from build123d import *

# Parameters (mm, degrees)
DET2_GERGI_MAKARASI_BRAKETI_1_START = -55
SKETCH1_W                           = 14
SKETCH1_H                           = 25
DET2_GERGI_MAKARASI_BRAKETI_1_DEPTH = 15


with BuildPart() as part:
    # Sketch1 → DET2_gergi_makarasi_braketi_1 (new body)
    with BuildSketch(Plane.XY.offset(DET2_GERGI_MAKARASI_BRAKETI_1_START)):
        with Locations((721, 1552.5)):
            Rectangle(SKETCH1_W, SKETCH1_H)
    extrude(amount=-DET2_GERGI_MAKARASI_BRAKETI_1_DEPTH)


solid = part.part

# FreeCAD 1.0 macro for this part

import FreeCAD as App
import Part
import Sketcher

V = App.Vector

doc = App.newDocument("Part")
body = doc.addObject("PartDesign::Body", "Body")

sketch1 = doc.addObject("Sketcher::SketchObject", "Sketch")
body.addObject(sketch1)
sketch1.AttachmentSupport = (doc.XY_Plane, [""])
sketch1.MapMode = "FlatFace"
sketch1.AttachmentOffset = App.Placement(V(0, 0, -55), App.Rotation())
sketch1.addGeometry([
    Part.LineSegment(V(714, 1565, 0), V(714, 1540, 0)),
    Part.LineSegment(V(714, 1540, 0), V(728, 1540, 0)),
    Part.LineSegment(V(728, 1540, 0), V(728, 1565, 0)),
    Part.LineSegment(V(728, 1565, 0), V(714, 1565, 0)),
], False)
sketch1.addConstraint([
    Sketcher.Constraint("Coincident", 0, 2, 1, 1),
    Sketcher.Constraint("Coincident", 1, 2, 2, 1),
    Sketcher.Constraint("Coincident", 2, 2, 3, 1),
    Sketcher.Constraint("Coincident", 3, 2, 0, 1),
    Sketcher.Constraint("Vertical", 0),
    Sketcher.Constraint("Horizontal", 1),
    Sketcher.Constraint("Vertical", 2),
    Sketcher.Constraint("Horizontal", 3),
    Sketcher.Constraint("DistanceX", 1, 1, 1, 2, 14.0),
    Sketcher.Constraint("DistanceY", 0, 2, 0, 1, 25.0),
    Sketcher.Constraint("DistanceX", -1, 1, 0, 2, 714.0),
    Sketcher.Constraint("DistanceY", -1, 1, 0, 2, 1540.0),
])
pad1 = doc.addObject("PartDesign::Pad", "Pad")
body.addObject(pad1)
pad1.Profile = sketch1
pad1.Length = 15
pad1.Reversed = True

doc.recompute()
